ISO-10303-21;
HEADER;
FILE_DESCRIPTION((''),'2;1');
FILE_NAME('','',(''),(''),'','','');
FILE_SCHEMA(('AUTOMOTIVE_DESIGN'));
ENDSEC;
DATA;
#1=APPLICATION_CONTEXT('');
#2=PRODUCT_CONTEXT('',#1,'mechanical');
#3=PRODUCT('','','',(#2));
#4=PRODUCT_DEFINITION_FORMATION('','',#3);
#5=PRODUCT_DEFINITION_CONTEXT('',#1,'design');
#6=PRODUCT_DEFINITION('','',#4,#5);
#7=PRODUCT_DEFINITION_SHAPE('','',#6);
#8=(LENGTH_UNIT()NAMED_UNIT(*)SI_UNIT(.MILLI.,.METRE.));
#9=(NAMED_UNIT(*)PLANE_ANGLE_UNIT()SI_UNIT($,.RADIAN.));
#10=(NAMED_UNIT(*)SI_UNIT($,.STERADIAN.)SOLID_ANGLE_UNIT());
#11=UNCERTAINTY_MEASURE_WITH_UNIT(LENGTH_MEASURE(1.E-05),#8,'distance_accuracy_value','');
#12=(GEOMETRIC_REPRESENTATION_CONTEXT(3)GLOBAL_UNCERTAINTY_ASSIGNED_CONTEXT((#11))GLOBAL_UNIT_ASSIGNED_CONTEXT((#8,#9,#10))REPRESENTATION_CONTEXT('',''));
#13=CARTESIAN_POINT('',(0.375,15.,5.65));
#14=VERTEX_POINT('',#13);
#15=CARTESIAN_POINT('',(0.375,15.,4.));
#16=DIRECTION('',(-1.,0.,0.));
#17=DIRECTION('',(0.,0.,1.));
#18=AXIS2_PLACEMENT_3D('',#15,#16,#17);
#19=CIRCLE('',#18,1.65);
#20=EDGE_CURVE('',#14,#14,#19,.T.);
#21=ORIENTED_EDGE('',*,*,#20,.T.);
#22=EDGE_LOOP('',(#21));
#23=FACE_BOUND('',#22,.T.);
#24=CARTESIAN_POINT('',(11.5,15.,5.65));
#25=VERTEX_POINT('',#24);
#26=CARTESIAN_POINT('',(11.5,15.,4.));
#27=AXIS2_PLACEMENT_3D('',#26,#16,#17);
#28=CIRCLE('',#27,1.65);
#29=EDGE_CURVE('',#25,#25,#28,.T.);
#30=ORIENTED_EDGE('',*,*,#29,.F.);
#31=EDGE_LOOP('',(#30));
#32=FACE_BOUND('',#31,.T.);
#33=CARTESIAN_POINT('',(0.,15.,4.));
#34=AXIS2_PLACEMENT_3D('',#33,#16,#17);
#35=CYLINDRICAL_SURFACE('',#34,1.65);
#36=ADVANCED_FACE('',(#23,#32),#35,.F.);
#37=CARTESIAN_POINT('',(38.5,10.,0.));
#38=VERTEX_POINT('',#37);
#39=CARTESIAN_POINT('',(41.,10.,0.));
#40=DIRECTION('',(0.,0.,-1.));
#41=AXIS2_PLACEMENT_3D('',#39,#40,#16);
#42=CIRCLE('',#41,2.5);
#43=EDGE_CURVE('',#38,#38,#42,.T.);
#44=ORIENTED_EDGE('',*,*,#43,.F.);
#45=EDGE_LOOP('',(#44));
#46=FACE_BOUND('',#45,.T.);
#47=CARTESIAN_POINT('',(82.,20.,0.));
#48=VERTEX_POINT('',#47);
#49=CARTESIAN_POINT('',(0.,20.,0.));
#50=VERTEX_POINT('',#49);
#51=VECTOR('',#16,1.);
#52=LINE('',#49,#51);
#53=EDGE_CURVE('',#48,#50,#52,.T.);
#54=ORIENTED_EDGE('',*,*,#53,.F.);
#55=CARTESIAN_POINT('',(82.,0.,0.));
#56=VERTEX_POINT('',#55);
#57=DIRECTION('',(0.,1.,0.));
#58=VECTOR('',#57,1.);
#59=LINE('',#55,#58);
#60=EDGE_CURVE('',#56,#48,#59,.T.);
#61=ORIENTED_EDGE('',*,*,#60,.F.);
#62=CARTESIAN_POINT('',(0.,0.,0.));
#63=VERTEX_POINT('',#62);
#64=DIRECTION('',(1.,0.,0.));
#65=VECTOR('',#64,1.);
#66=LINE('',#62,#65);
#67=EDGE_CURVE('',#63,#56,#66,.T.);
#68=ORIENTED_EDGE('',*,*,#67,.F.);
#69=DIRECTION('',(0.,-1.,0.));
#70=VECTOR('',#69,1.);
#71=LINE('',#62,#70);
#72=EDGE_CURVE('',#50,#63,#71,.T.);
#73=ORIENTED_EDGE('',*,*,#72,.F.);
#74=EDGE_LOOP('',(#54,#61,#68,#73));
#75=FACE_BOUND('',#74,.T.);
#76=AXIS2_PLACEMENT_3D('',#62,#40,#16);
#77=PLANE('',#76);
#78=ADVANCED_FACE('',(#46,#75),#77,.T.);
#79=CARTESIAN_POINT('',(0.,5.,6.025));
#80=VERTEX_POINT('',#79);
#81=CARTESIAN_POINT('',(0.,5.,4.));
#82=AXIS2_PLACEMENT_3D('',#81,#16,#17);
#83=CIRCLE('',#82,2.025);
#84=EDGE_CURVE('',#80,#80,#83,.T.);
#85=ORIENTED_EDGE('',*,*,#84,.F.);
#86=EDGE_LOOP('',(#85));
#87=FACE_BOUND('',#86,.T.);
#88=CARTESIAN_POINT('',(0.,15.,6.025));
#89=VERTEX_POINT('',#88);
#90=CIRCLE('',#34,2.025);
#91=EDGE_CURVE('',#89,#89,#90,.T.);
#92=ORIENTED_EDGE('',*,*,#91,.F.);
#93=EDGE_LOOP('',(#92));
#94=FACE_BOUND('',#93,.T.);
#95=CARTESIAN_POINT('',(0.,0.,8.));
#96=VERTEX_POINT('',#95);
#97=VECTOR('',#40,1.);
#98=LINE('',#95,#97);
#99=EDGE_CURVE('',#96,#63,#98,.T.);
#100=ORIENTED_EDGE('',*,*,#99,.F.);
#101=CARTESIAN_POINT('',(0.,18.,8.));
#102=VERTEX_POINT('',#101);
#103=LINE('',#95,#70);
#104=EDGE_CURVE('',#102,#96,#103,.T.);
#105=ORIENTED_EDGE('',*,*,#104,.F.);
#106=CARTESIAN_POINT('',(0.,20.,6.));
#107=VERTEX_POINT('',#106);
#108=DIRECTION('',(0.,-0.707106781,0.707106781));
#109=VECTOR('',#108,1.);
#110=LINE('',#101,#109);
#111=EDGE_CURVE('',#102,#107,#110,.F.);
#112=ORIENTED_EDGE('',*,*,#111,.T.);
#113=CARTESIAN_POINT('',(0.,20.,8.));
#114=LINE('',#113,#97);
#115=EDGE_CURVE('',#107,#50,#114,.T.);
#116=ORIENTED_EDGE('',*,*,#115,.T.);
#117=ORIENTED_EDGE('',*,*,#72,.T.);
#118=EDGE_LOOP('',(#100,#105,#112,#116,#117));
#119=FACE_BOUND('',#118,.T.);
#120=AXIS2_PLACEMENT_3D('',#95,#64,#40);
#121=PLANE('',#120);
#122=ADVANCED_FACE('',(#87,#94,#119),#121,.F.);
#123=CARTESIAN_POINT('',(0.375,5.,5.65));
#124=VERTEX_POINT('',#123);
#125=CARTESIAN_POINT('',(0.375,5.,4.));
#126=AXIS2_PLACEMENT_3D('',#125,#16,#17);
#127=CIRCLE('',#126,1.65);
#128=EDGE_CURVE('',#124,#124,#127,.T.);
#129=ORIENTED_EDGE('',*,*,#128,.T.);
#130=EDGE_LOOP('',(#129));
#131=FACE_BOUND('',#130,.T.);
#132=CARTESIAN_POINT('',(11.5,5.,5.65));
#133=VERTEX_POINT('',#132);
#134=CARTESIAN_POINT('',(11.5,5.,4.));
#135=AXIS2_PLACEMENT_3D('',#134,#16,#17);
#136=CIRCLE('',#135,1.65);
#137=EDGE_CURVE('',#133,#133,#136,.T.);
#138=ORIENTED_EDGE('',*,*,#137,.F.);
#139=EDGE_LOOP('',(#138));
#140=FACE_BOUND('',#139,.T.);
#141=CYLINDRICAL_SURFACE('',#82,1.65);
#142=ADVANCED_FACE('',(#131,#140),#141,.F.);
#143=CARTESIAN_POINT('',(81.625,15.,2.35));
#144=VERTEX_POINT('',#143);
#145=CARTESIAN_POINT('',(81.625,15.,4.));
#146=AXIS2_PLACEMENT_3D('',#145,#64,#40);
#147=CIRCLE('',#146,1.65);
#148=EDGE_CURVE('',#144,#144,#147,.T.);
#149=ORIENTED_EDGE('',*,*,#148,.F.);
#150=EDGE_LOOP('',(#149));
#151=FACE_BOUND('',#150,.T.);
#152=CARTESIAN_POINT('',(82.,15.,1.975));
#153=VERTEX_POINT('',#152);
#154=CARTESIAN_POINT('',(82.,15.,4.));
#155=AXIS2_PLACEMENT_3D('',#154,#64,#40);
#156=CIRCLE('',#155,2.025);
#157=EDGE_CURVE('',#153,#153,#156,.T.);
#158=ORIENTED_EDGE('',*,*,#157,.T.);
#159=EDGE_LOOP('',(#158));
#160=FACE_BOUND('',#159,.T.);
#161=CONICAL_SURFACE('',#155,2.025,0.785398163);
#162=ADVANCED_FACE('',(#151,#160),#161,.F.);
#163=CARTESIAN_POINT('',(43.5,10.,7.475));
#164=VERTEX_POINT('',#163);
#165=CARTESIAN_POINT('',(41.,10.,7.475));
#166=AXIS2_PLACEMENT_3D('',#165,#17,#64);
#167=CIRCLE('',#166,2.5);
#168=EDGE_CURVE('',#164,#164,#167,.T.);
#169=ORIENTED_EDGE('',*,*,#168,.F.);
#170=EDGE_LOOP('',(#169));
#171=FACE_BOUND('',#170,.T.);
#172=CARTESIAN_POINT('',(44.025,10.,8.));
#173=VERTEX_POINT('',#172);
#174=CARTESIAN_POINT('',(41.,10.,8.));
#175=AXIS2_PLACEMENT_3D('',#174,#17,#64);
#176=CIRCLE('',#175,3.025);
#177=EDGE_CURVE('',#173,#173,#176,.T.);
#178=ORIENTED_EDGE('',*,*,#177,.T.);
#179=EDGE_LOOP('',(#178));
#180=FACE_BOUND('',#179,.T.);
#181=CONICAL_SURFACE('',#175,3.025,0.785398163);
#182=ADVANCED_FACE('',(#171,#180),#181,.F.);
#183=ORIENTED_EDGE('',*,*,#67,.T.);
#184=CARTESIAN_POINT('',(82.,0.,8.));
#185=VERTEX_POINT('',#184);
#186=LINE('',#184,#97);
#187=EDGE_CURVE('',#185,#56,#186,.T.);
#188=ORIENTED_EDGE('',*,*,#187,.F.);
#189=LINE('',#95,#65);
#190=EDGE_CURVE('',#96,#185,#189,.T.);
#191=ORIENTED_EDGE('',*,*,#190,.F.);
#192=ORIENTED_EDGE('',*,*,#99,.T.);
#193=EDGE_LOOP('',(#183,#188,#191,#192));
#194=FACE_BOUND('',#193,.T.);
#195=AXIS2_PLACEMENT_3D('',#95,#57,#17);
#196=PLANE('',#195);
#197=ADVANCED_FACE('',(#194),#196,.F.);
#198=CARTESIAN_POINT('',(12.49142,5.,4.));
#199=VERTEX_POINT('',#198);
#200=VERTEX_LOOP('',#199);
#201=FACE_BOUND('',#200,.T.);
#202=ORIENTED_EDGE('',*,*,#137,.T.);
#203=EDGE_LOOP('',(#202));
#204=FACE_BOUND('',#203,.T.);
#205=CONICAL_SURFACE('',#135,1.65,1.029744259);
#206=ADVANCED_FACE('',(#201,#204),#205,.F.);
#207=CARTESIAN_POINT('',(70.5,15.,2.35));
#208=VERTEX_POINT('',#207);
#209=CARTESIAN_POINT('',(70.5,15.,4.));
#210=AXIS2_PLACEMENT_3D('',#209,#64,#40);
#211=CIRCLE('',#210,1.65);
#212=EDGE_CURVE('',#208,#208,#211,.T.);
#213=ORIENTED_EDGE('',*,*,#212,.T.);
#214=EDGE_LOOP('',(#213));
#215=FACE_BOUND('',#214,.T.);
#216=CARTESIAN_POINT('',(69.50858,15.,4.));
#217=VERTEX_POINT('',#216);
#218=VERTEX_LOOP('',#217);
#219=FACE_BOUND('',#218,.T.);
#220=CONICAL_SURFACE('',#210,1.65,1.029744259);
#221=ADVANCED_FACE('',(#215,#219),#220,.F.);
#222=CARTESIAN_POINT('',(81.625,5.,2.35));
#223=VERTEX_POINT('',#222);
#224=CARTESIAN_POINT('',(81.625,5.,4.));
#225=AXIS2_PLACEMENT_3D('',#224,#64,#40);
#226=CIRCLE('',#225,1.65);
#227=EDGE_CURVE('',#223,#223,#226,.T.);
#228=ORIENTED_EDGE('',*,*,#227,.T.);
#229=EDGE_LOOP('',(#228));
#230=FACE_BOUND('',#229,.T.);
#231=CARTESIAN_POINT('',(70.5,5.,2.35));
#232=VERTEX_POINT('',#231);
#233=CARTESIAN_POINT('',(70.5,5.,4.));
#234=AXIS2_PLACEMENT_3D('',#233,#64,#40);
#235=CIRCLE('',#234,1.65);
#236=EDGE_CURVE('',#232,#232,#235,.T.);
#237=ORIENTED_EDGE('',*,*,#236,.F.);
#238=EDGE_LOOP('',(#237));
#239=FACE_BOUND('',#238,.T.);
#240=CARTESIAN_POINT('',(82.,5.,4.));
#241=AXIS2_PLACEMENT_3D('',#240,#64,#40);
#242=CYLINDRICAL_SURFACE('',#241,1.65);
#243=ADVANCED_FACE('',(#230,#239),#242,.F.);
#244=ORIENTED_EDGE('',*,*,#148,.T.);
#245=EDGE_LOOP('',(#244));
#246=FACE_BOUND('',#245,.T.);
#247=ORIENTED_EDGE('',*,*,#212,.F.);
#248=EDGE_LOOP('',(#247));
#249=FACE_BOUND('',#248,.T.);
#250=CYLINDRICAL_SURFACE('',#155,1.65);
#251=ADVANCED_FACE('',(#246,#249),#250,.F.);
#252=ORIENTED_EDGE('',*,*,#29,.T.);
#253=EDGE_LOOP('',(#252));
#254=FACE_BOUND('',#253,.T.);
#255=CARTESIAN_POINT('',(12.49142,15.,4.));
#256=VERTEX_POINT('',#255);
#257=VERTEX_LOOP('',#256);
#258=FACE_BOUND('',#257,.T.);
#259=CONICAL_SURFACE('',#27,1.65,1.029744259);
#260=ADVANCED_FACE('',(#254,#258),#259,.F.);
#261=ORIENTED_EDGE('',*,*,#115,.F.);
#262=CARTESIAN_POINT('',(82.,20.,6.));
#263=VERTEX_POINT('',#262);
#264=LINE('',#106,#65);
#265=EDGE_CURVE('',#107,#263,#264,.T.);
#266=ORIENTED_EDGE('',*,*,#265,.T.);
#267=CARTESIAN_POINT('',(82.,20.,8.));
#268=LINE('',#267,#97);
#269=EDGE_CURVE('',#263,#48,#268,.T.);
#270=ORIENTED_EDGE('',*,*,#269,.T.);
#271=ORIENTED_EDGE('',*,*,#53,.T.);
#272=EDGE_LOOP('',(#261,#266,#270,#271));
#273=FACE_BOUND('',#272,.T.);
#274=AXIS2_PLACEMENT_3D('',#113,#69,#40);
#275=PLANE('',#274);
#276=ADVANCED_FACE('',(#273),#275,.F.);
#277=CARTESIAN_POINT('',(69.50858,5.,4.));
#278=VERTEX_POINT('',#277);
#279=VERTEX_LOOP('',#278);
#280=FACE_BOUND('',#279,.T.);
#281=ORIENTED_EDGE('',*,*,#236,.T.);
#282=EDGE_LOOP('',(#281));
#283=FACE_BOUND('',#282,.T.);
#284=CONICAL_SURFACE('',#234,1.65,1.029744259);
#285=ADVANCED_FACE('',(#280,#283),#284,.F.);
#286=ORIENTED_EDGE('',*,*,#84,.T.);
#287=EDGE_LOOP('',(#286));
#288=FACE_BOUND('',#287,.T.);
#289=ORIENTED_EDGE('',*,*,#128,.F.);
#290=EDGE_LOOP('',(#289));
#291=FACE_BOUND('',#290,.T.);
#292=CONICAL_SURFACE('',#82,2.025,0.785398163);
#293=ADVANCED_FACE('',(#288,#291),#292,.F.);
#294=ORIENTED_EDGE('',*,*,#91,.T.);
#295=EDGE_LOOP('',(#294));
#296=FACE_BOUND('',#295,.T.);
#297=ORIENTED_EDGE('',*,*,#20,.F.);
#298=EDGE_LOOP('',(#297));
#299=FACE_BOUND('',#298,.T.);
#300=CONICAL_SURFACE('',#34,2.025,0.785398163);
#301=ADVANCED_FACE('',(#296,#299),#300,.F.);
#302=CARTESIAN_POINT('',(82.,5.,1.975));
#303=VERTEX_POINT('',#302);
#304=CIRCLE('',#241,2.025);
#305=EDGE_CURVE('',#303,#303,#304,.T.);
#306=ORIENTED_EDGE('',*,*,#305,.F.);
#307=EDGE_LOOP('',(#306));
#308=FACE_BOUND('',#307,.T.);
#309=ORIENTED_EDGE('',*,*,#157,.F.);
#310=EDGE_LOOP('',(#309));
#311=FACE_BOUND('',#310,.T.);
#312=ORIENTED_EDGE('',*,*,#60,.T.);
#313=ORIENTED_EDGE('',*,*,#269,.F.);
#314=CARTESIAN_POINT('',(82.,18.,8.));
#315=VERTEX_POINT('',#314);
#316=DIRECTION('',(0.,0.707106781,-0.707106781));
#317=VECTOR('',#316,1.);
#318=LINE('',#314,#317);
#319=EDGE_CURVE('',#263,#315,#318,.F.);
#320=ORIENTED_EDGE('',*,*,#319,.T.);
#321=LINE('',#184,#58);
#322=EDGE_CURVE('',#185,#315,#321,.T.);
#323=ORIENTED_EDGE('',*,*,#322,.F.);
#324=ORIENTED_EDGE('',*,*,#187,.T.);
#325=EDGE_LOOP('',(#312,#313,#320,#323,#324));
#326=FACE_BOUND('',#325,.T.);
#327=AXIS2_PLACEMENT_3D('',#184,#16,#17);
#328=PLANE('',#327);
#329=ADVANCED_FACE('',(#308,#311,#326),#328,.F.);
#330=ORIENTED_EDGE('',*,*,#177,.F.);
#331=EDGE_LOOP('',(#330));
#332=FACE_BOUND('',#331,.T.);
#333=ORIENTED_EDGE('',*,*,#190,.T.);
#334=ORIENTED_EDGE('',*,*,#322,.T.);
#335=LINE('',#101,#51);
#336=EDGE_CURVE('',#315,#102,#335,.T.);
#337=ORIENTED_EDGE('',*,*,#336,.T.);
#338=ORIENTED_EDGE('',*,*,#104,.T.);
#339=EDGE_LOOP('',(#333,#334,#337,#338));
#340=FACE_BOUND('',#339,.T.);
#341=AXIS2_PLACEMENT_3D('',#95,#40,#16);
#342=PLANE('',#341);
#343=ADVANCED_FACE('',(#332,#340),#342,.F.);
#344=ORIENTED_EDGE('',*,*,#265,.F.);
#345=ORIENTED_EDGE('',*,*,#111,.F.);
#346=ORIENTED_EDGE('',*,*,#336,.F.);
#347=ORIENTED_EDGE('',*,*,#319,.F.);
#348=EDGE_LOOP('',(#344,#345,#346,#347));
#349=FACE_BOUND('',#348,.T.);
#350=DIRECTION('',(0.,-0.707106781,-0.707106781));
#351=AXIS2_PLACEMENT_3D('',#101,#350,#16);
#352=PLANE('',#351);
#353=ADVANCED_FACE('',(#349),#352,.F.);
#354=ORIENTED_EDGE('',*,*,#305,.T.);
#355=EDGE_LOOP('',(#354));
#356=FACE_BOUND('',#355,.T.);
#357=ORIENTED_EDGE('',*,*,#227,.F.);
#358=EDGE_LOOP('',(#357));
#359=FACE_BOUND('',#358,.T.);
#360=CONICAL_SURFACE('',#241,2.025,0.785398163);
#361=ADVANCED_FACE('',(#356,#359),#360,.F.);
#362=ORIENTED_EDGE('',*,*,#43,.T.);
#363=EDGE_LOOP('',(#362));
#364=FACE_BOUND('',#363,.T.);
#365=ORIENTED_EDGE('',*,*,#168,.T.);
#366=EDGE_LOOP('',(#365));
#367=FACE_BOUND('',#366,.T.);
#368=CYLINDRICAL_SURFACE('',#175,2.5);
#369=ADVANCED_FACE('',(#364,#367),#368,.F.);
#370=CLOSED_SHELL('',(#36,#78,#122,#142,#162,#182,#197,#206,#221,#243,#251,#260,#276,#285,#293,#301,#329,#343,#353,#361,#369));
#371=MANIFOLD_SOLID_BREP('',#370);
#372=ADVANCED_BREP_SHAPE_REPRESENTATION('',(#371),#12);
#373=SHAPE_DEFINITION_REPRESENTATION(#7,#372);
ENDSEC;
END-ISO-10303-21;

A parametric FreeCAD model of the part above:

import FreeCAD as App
import Part
import Sketcher
Q = App.Units.Quantity


def edges_at(feature, points):
    """Names of the edges that pass closest to the given points."""
    edges = feature.Shape.Edges
    near = lambda p: min(range(len(edges)), key=lambda i: edges[i].distToShape(Part.Vertex(*p))[0])
    return sorted({f"Edge{near(p) + 1}" for p in points})

doc = App.newDocument("Part")
body = doc.addObject("PartDesign::Body", "Body")

sketch1 = doc.addObject("Sketcher::SketchObject", "Sketch")
body.addObject(sketch1)
sketch1.AttachmentSupport = (doc.XY_Plane, [""])
sketch1.MapMode = "FlatFace"
sketch1.addGeometry([
    Part.LineSegment(App.Vector(0, 20, 0), App.Vector(0, 0, 0)),
    Part.LineSegment(App.Vector(0, 0, 0), App.Vector(82, 0, 0)),
    Part.LineSegment(App.Vector(82, 0, 0), App.Vector(82, 20, 0)),
    Part.LineSegment(App.Vector(82, 20, 0), App.Vector(0, 20, 0)),
], False)
sketch1.addConstraint([
    Sketcher.Constraint("Coincident", 0, 2, 1, 1),
    Sketcher.Constraint("Coincident", 1, 2, 2, 1),
    Sketcher.Constraint("Coincident", 2, 2, 3, 1),
    Sketcher.Constraint("Coincident", 3, 2, 0, 1),
    Sketcher.Constraint("Vertical", 0),
    Sketcher.Constraint("Horizontal", 1),
    Sketcher.Constraint("Vertical", 2),
    Sketcher.Constraint("Horizontal", 3),
    Sketcher.Constraint("Coincident", 0, 2, -1, 1),
    Sketcher.Constraint("DistanceX", 1, 1, 1, 2, 82.0),
    Sketcher.Constraint("DistanceY", 0, 2, 0, 1, 20.0),
])
pad1 = doc.addObject("PartDesign::Pad", "Pad")
body.addObject(pad1)
pad1.Profile = sketch1
pad1.Length = 8

sketch2 = doc.addObject("Sketcher::SketchObject", "Sketch001")
body.addObject(sketch2)
sketch2.AttachmentSupport = (doc.XY_Plane, [""])
sketch2.MapMode = "FlatFace"
sketch2.AttachmentOffset = App.Placement(App.Vector(0, 0, 8), App.Rotation())
sketch2.addGeometry(Part.Circle(App.Vector(41, 10, 0), App.Vector(0, 0, 1), 2.5), False)
sketch2.addConstraint([
    Sketcher.Constraint("Diameter", 0, 5.0),
    Sketcher.Constraint("DistanceX", -1, 1, 0, 3, 41.0),
    Sketcher.Constraint("DistanceY", -1, 1, 0, 3, 10.0),
])
doc.recompute()
hole = doc.addObject("PartDesign::Hole", "Hole")
body.addObject(hole)
hole.Profile = sketch2
hole.ThreadType = "None"
hole.Diameter = 5
hole.DepthType = "ThroughAll"
hole.HoleCutType = "Countersink"
hole.HoleCutDiameter = 6.05
hole.HoleCutCountersinkAngle = 90

sketch3 = doc.addObject("Sketcher::SketchObject", "Sketch002")
body.addObject(sketch3)
sketch3.AttachmentSupport = (doc.XZ_Plane, [""])
sketch3.MapMode = "FlatFace"
sketch3.AttachmentOffset = App.Placement(App.Vector(0, 0, -15), App.Rotation())
sketch3.addGeometry([
    Part.LineSegment(App.Vector(12.49142, 4, 0), App.Vector(0, 4, 0)),
    Part.LineSegment(App.Vector(0, 4, 0), App.Vector(0, 6.025, 0)),
    Part.LineSegment(App.Vector(0, 6.025, 0), App.Vector(0.375, 5.65, 0)),
    Part.LineSegment(App.Vector(0.375, 5.65, 0), App.Vector(11.5, 5.65, 0)),
    Part.LineSegment(App.Vector(11.5, 5.65, 0), App.Vector(12.49142, 4, 0)),
], False)
sketch3.addGeometry(Part.LineSegment(App.Vector(0, 4, 0), App.Vector(12.49142, 4, 0)), True)
sketch3.addConstraint([
    Sketcher.Constraint("Coincident", 0, 2, 1, 1),
    Sketcher.Constraint("Coincident", 1, 2, 2, 1),
    Sketcher.Constraint("Coincident", 2, 2, 3, 1),
    Sketcher.Constraint("Coincident", 3, 2, 4, 1),
    Sketcher.Constraint("Coincident", 4, 2, 0, 1),
    Sketcher.Constraint("Horizontal", 0),
    Sketcher.Constraint("Vertical", 1),
    Sketcher.Constraint("Horizontal", 3),
    Sketcher.Constraint("Horizontal", 5),
    Sketcher.Constraint("Coincident", 5, 1, 0, 2),
    Sketcher.Constraint("PointOnObject", 0, 2, -2),
    Sketcher.Constraint("Equal", 0, 5),
    Sketcher.Constraint("Angle", 2, Q("-45 deg")),
    Sketcher.Constraint("Angle", 4, Q("-59 deg")),
    Sketcher.Constraint("DistanceY", -1, 1, 0, 2, 4.0),
    Sketcher.Constraint("DistanceX", -1, 1, 3, 2, 11.5),
    Sketcher.Constraint("DistanceX", 3, 1, 3, 2, 11.125),
    Sketcher.Constraint("DistanceY", 1, 1, 1, 2, 2.025),
])
groove = doc.addObject("PartDesign::Groove", "Groove")
body.addObject(groove)
groove.Profile = sketch3
groove.ReferenceAxis = (sketch3, ["Axis0"])
groove.Angle = 360
doc.recompute()

linearpattern = doc.addObject("PartDesign::LinearPattern", "LinearPattern")
body.addObject(linearpattern)
linearpattern.Originals = [groove]
linearpattern.Direction = (doc.Y_Axis, [""])
linearpattern.Mode = "offset"
linearpattern.Offset = 10
linearpattern.Occurrences = 2
linearpattern.Reversed = True
body.Tip = linearpattern
doc.recompute()

datumplane = doc.addObject("PartDesign::Plane", "DatumPlane")
body.addObject(datumplane)
datumplane.AttachmentSupport = (doc.YZ_Plane, [""])
datumplane.MapMode = "FlatFace"
datumplane.AttachmentOffset = App.Placement(App.Vector(0, 0, 41), App.Rotation())
mirrored = doc.addObject("PartDesign::Mirrored", "Mirrored")
body.addObject(mirrored)
mirrored.Originals = [groove]
mirrored.MirrorPlane = (datumplane, [""])
body.Tip = mirrored

sketch4 = doc.addObject("Sketcher::SketchObject", "Sketch003")
body.addObject(sketch4)
sketch4.AttachmentSupport = (doc.XZ_Plane, [""])
sketch4.MapMode = "FlatFace"
sketch4.AttachmentOffset = App.Placement(App.Vector(0, 0, -5), App.Rotation())
sketch4.addGeometry([
    Part.LineSegment(App.Vector(82, 4, 0), App.Vector(69.50858, 4, 0)),
    Part.LineSegment(App.Vector(69.50858, 4, 0), App.Vector(70.5, 5.65, 0)),
    Part.LineSegment(App.Vector(70.5, 5.65, 0), App.Vector(81.625, 5.65, 0)),
    Part.LineSegment(App.Vector(81.625, 5.65, 0), App.Vector(82, 6.025, 0)),
    Part.LineSegment(App.Vector(82, 6.025, 0), App.Vector(82, 4, 0)),
], False)
sketch4.addGeometry(Part.LineSegment(App.Vector(69.50858, 4, 0), App.Vector(82, 4, 0)), True)
sketch4.addConstraint([
    Sketcher.Constraint("Coincident", 0, 2, 1, 1),
    Sketcher.Constraint("Coincident", 1, 2, 2, 1),
    Sketcher.Constraint("Coincident", 2, 2, 3, 1),
    Sketcher.Constraint("Coincident", 3, 2, 4, 1),
    Sketcher.Constraint("Coincident", 4, 2, 0, 1),
    Sketcher.Constraint("Horizontal", 0),
    Sketcher.Constraint("Horizontal", 2),
    Sketcher.Constraint("Vertical", 4),
    Sketcher.Constraint("Horizontal", 5),
    Sketcher.Constraint("Coincident", 5, 1, 0, 2),
    Sketcher.Constraint("Vertical", 3, 2, 5, 2),
    Sketcher.Constraint("Angle", 1, Q("59 deg")),
    Sketcher.Constraint("Angle", 3, Q("45 deg")),
    Sketcher.Constraint("DistanceY", -1, 1, 0, 2, 4.0),
    Sketcher.Constraint("DistanceX", -1, 1, 3, 2, 82.0),
    Sketcher.Constraint("DistanceX", -1, 1, 1, 2, 70.5),
    Sketcher.Constraint("DistanceX", 2, 1, 2, 2, 11.125),
    Sketcher.Constraint("DistanceY", 4, 2, 4, 1, 2.025),
])
groove2 = doc.addObject("PartDesign::Groove", "Groove001")
body.addObject(groove2)
groove2.Profile = sketch4
groove2.ReferenceAxis = (sketch4, ["Axis0"])
groove2.Angle = 360
doc.recompute()

chamfer = doc.addObject("PartDesign::Chamfer", "Chamfer")
body.addObject(chamfer)
chamfer.Base = (groove2, edges_at(groove2, [(41, 20, 8)]))
chamfer.Size = 2

doc.recompute()
